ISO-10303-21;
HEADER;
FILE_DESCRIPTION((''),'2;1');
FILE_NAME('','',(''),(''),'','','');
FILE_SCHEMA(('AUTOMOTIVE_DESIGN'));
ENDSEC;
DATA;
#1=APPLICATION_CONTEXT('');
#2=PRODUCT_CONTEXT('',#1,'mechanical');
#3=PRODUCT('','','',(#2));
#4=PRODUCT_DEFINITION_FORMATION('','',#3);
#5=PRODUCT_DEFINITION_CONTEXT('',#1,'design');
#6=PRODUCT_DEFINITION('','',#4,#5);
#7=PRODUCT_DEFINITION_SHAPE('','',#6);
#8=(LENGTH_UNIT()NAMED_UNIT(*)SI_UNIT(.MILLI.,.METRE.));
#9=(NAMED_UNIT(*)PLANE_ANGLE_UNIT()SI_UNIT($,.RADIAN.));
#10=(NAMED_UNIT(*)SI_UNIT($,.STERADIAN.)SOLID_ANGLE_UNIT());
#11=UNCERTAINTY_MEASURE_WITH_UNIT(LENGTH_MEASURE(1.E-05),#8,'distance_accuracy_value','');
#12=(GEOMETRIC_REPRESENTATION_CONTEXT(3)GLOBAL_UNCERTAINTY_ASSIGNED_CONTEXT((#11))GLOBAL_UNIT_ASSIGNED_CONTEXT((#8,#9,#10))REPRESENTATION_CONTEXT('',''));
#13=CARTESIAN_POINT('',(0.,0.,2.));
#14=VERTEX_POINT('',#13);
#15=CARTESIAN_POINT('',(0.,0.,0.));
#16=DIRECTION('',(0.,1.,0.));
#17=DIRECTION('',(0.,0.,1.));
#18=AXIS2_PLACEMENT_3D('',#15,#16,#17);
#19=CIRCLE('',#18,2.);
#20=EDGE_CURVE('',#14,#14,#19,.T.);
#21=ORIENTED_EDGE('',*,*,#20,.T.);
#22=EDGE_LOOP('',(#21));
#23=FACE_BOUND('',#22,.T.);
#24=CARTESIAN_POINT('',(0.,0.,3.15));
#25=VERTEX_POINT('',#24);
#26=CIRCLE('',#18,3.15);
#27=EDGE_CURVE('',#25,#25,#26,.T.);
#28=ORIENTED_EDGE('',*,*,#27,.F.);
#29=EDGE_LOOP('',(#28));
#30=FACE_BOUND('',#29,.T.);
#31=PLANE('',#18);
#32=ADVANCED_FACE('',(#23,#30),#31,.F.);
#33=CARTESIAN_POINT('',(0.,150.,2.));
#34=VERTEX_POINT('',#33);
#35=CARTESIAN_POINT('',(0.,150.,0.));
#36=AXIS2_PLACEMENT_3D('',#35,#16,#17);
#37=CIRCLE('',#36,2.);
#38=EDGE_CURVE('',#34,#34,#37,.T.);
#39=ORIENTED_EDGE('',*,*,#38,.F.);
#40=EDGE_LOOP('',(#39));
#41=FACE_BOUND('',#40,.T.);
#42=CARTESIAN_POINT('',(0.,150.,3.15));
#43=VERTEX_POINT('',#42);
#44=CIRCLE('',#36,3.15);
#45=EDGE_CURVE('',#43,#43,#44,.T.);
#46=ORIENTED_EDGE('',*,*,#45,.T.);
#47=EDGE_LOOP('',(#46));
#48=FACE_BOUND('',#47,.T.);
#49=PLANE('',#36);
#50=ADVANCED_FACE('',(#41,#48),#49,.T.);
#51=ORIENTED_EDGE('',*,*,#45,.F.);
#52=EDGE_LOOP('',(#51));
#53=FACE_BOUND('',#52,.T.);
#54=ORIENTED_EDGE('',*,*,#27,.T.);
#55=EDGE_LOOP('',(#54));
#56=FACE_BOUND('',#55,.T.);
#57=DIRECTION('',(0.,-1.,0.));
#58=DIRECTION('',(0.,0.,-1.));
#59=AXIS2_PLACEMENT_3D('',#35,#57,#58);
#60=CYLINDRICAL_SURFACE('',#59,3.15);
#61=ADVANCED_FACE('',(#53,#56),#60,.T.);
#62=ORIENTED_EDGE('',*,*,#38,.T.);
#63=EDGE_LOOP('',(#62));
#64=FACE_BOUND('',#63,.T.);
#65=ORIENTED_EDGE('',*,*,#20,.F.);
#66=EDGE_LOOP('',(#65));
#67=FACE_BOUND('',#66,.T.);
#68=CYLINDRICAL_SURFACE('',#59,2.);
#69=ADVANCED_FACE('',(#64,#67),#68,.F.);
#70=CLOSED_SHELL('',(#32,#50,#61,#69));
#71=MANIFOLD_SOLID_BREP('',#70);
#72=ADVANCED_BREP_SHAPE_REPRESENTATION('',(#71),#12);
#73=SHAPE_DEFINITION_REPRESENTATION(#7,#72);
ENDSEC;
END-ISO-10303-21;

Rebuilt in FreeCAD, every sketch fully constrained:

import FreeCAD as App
import Part
import Sketcher

doc = App.newDocument("Part")
params = doc.addObject("Spreadsheet::Sheet", "Params")
for row, (alias, value) in enumerate([
    ("sketch1_diameter", "4 mm"),
    ("sketch1_diameter2", "6.3 mm"),
    ("pad1_length", "150 mm"),
], start=1):
    params.set(f"A{row}", alias)
    params.set(f"B{row}", "=" + value)
    params.setAlias(f"B{row}", alias)

body = doc.addObject("PartDesign::Body", "Body")

# Sketch on XZ plane
sketch1 = body.newObject("Sketcher::SketchObject", "Sketch")
sketch1.AttachmentSupport = (doc.getObject("XZ_Plane"), [""])
sketch1.MapMode = "FlatFace"
sketch1.addGeometry(Part.Circle(App.Vector(0, 0, 0), App.Vector(0, 0, 1), 3.15), False)
sketch1.addGeometry(Part.Circle(App.Vector(0, 0, 0), App.Vector(0, 0, 1), 2), False)
sketch1.addConstraint(Sketcher.Constraint("Coincident", 0, 3, -1, 1))
sketch1.addConstraint(Sketcher.Constraint("Coincident", 1, 3, -1, 1))
sketch1.addConstraint(Sketcher.Constraint("Diameter", 1, 4.0))
sketch1.addConstraint(Sketcher.Constraint("Diameter", 0, 6.3))
sketch1.setExpression("Constraints[2]", "Params.sketch1_diameter")
sketch1.setExpression("Constraints[3]", "Params.sketch1_diameter2")
pad1 = body.newObject("PartDesign::Pad", "Pad")
pad1.Profile = sketch1
pad1.setExpression("Length", "Params.pad1_length")
pad1.Reversed = True

doc.recompute()
